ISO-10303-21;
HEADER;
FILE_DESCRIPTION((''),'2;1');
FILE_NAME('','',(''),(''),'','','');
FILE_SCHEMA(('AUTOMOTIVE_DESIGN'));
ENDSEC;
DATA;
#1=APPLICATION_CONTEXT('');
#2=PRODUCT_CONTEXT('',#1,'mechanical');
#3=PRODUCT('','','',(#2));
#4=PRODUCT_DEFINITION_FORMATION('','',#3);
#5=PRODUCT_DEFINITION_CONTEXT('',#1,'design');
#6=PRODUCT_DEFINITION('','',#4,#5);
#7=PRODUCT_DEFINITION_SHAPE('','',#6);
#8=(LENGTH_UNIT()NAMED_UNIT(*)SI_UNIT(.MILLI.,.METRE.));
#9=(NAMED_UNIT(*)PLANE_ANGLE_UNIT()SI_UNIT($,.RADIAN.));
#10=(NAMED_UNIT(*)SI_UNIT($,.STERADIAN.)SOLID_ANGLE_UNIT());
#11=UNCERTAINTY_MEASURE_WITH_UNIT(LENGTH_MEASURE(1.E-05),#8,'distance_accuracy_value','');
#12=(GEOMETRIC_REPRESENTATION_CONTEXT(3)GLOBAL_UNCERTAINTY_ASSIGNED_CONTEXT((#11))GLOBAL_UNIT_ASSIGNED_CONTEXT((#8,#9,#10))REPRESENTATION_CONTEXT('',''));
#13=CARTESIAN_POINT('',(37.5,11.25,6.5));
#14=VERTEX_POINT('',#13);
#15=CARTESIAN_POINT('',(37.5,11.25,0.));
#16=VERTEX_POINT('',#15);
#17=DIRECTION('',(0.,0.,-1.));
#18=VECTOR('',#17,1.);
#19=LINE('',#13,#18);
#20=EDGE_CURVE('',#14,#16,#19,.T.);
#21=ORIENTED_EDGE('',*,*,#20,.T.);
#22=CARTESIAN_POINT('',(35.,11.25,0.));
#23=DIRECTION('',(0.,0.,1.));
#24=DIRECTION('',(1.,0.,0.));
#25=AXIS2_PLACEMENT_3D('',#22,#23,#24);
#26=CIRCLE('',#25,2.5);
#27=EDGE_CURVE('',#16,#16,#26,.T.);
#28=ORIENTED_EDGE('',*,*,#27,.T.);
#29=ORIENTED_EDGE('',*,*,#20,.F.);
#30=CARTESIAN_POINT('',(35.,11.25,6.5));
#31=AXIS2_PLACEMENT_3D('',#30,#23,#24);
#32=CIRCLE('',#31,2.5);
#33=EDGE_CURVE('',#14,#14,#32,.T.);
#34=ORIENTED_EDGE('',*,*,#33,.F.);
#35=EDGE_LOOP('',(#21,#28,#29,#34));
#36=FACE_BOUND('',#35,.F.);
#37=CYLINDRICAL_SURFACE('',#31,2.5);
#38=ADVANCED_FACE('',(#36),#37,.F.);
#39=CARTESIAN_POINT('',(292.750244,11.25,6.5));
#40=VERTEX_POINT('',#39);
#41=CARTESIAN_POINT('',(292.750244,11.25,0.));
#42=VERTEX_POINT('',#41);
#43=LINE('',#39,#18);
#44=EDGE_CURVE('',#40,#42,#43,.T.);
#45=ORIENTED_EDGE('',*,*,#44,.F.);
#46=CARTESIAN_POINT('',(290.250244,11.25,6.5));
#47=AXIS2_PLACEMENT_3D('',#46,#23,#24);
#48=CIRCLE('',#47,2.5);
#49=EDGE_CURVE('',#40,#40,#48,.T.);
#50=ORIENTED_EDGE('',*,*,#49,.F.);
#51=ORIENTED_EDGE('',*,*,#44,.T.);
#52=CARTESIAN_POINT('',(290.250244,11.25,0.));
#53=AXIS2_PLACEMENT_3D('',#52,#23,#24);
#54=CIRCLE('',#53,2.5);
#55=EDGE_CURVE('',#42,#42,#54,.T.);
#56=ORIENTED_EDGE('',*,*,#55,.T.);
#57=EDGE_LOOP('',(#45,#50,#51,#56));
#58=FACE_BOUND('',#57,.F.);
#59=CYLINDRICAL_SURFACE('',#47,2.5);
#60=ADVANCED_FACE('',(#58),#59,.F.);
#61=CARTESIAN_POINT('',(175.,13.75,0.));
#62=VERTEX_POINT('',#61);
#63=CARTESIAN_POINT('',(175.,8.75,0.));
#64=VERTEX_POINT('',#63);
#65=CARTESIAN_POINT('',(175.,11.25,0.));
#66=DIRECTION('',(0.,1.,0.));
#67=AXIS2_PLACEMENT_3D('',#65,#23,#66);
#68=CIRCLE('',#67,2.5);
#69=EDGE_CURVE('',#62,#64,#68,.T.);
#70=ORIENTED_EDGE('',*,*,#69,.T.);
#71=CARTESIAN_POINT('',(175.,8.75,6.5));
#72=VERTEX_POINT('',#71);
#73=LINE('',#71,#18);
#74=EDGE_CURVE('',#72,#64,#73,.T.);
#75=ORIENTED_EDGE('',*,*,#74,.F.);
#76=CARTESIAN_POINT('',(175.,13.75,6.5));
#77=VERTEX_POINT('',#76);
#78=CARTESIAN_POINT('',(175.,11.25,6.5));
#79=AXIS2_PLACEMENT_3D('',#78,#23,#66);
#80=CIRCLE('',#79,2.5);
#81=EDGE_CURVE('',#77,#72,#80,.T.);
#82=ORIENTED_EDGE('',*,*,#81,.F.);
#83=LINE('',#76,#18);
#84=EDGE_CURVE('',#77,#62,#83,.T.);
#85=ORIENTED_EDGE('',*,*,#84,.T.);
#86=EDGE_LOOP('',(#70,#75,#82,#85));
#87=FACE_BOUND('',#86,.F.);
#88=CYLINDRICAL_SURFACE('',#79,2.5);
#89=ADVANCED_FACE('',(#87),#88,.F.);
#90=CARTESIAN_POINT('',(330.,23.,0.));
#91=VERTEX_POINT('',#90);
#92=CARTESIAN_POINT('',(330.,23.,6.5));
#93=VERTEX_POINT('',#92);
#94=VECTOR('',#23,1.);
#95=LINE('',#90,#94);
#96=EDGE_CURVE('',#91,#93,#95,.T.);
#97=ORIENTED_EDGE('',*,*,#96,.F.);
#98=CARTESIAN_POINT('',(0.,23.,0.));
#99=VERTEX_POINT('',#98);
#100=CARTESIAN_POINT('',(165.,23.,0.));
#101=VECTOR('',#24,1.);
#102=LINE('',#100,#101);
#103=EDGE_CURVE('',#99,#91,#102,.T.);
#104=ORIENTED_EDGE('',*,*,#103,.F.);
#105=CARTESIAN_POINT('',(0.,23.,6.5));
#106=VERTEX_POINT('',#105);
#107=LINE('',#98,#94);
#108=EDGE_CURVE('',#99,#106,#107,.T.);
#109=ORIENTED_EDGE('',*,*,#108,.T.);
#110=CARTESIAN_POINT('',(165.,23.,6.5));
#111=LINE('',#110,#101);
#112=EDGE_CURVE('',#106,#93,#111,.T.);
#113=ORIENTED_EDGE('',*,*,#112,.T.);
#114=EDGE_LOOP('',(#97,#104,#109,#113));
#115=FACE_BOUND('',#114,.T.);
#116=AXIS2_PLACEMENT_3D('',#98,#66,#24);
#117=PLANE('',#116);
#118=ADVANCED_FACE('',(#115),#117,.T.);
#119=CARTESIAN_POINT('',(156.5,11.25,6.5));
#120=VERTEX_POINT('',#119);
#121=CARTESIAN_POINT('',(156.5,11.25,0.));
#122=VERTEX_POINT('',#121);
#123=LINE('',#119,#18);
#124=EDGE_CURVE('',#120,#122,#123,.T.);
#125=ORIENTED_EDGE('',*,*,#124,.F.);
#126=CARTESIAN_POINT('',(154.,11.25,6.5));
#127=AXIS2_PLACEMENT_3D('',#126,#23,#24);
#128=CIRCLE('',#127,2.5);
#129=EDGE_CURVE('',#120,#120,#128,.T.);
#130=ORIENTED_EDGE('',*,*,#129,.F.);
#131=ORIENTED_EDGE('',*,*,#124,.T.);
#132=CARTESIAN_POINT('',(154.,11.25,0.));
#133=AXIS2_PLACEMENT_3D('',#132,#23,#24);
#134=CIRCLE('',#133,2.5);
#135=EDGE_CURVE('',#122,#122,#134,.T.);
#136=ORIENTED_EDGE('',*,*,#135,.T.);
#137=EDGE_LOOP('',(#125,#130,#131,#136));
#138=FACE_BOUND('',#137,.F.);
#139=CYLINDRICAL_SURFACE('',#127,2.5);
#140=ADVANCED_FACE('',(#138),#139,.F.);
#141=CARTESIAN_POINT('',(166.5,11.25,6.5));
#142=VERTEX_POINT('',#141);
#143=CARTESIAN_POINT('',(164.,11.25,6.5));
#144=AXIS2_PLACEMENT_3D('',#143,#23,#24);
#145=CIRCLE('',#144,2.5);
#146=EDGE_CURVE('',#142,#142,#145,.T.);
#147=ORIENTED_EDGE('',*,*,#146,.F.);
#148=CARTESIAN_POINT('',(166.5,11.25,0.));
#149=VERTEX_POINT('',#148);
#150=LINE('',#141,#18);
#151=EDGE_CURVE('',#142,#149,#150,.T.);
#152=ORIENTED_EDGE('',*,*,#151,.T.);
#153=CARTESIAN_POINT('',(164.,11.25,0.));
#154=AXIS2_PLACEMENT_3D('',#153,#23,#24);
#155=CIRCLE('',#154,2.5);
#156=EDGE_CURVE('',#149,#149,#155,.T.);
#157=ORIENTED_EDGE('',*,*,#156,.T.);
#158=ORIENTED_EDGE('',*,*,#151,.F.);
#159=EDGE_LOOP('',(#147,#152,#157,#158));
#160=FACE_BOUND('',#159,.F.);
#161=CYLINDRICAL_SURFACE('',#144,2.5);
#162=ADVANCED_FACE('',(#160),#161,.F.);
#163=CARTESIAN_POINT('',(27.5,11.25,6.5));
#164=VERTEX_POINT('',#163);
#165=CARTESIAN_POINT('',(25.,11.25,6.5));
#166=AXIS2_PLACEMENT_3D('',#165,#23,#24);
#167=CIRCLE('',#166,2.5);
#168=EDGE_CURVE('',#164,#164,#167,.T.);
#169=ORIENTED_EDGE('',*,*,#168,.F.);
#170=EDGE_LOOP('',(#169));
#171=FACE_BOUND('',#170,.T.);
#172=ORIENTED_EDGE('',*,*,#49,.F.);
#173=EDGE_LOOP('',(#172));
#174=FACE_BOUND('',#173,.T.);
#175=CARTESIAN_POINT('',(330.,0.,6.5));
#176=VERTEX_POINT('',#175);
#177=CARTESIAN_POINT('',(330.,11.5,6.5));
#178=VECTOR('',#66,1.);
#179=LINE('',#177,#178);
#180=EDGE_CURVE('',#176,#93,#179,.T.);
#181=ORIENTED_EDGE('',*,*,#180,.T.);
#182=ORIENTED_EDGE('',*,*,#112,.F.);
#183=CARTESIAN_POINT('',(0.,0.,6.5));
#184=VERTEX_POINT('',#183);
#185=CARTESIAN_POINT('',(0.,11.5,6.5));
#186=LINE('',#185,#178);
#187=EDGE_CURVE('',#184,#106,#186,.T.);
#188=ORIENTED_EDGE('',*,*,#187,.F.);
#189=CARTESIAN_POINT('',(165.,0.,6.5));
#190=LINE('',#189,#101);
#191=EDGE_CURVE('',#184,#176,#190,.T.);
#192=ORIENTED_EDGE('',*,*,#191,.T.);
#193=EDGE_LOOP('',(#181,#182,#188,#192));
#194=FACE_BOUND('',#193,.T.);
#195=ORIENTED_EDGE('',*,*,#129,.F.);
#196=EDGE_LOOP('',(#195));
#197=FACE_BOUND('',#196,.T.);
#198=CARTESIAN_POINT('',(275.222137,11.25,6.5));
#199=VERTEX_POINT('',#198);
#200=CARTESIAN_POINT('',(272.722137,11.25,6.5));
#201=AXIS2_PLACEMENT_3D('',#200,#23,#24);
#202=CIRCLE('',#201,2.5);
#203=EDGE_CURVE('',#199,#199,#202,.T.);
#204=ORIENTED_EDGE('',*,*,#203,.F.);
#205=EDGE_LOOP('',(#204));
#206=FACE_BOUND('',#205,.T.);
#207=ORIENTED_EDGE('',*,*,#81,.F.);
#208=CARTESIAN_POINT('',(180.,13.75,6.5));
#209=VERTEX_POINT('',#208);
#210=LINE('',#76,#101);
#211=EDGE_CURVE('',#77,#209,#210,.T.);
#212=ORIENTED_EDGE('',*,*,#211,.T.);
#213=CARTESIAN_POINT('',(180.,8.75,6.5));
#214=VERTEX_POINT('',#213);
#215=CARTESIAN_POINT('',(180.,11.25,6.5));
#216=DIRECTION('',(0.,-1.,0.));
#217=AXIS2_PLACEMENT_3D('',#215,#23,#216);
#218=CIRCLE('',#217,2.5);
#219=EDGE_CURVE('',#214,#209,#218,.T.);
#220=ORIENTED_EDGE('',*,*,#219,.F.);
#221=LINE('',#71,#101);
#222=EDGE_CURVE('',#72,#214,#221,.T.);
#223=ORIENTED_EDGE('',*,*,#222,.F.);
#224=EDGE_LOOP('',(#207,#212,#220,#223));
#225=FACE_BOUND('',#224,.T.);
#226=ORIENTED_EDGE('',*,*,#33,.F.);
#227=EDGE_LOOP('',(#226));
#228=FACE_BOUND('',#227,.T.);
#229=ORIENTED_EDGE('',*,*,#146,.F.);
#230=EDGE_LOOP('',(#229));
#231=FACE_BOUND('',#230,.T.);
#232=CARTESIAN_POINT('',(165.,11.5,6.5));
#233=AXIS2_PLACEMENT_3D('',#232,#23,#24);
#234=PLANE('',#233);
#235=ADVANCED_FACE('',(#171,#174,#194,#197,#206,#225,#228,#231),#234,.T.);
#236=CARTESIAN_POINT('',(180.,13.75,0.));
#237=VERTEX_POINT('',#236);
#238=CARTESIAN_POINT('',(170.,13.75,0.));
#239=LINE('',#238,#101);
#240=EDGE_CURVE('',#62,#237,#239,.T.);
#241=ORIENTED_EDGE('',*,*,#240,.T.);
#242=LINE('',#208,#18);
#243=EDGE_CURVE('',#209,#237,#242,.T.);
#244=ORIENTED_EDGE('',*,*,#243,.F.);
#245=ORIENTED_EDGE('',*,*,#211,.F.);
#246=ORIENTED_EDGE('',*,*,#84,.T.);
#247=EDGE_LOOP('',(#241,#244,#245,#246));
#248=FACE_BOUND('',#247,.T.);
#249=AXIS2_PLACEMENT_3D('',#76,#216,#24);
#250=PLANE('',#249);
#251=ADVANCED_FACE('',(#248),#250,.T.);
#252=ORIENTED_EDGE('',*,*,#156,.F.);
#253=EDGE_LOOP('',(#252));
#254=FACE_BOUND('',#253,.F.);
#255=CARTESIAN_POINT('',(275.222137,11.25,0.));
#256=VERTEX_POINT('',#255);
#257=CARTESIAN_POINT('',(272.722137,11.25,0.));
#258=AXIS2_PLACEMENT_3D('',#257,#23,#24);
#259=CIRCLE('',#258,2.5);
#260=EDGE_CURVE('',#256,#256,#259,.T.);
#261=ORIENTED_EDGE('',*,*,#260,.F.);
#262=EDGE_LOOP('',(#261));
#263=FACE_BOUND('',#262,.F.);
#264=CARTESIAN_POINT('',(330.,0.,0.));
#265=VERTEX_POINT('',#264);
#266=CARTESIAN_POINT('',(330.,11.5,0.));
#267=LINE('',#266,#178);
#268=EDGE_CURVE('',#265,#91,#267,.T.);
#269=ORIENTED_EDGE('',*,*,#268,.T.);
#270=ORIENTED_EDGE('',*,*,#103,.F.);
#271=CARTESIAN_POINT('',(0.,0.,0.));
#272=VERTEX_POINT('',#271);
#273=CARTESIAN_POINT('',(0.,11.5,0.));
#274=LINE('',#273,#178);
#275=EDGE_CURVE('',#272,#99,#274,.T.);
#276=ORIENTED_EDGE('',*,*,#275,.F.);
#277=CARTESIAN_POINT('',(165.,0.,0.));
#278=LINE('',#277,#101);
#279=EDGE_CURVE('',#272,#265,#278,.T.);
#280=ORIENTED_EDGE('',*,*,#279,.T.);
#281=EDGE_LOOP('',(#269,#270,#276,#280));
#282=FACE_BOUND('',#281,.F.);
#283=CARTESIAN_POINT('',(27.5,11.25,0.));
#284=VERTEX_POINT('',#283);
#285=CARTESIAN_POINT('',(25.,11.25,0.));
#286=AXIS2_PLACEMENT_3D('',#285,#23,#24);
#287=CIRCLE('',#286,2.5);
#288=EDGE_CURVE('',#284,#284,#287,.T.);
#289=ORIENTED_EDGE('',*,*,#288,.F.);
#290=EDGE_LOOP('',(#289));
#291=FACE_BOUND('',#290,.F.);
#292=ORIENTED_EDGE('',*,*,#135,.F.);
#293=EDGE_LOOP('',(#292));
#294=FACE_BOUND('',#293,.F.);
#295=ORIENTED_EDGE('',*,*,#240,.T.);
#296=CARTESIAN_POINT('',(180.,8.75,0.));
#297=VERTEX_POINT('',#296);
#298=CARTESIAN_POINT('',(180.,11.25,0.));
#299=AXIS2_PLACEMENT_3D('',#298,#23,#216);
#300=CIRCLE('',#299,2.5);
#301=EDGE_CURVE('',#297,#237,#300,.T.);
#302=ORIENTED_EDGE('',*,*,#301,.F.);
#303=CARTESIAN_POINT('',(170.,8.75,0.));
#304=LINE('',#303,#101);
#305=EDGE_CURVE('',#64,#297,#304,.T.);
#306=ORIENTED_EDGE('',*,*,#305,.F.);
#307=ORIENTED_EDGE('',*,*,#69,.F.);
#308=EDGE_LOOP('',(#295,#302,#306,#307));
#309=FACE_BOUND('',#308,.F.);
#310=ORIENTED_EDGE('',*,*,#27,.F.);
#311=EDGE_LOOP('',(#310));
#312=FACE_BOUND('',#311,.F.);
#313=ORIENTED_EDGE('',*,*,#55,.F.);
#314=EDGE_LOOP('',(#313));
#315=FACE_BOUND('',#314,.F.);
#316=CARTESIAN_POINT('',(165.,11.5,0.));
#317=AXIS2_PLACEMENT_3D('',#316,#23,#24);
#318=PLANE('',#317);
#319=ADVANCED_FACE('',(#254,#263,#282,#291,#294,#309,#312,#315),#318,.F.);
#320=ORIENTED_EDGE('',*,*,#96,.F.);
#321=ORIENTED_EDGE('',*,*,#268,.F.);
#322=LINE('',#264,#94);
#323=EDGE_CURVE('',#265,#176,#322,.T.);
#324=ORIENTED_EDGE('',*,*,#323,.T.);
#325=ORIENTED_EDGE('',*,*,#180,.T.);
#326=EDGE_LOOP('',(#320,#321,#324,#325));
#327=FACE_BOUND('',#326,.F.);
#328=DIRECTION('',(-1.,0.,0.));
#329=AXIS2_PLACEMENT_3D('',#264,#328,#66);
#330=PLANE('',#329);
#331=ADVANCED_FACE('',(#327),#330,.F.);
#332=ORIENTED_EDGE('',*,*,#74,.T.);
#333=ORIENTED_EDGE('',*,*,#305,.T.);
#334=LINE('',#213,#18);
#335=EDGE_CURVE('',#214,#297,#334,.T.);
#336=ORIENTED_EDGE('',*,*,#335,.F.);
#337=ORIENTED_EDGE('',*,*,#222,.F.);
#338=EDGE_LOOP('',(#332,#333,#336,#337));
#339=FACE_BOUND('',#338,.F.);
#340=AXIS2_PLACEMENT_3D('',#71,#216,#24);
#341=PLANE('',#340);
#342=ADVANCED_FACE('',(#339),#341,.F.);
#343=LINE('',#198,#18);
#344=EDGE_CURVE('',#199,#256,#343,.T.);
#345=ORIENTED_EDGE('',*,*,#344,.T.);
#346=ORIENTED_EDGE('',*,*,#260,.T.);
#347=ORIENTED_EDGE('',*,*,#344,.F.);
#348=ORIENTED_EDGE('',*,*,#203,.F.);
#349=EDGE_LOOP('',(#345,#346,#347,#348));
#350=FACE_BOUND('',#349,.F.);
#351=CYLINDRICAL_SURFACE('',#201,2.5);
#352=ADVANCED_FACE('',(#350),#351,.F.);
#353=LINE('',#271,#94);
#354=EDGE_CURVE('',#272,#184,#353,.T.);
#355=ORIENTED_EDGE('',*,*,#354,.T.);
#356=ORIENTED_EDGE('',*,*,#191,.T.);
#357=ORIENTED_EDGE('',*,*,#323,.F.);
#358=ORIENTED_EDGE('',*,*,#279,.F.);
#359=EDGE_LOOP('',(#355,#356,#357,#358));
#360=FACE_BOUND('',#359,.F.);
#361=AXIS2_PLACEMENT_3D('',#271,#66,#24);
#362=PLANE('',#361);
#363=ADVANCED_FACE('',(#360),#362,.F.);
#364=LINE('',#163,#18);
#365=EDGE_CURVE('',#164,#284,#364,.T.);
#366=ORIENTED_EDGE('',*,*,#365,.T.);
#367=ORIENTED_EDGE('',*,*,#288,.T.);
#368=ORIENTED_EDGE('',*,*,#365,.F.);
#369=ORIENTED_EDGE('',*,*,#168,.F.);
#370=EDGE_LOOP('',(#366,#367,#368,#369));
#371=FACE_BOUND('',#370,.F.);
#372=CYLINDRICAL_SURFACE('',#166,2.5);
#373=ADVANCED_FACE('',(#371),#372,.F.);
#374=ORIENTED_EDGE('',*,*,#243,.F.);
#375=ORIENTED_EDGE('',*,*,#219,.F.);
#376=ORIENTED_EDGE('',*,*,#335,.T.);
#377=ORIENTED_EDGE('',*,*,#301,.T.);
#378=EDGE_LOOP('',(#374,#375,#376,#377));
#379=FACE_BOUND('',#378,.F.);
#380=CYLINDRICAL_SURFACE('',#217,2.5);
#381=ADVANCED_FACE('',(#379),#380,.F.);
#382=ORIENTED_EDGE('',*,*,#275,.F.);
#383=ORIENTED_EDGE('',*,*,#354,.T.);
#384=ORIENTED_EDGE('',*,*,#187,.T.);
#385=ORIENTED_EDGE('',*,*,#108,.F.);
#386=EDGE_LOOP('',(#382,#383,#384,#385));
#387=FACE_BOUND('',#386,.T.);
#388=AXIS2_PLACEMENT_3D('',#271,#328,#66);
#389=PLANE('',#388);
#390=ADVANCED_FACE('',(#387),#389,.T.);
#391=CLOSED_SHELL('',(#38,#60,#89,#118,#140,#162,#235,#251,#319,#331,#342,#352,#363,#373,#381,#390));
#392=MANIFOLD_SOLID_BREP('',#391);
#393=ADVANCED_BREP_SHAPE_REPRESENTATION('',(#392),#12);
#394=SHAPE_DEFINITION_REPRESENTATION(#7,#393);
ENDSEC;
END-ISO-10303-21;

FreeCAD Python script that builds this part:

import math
import FreeCAD as App
import Part
import Sketcher


def add_polygon(sketch, points):
    """Adds a closed chain of lines whose ends are joined by coincident constraints."""
    first, n = sketch.GeometryCount, len(points)
    for a, b in zip(points, points[1:] + points[:1]):
        sketch.addGeometry(Part.LineSegment(App.Vector(*a, 0), App.Vector(*b, 0)), False)
    for i in range(n):
        sketch.addConstraint(Sketcher.Constraint("Coincident", first + i, 2, first + (i + 1) % n, 1))

doc = App.newDocument("Part")
body = doc.addObject("PartDesign::Body", "Body")

# Sketch on XY plane
sketch1 = body.newObject("Sketcher::SketchObject", "Sketch")
sketch1.AttachmentSupport = (doc.getObject("XY_Plane"), [""])
sketch1.MapMode = "FlatFace"
add_polygon(sketch1, [(0, 23), (0, 0), (330, 0), (330, 23)])  # lines 0-3
sketch1.addConstraint([
    Sketcher.Constraint("Vertical", 0),
    Sketcher.Constraint("Horizontal", 1),
    Sketcher.Constraint("Vertical", 2),
    Sketcher.Constraint("Horizontal", 3),
    Sketcher.Constraint("Coincident", 0, 2, -1, 1),
    Sketcher.Constraint("DistanceX", 1, 1, 1, 2, 330.0),
    Sketcher.Constraint("DistanceY", 0, 2, 0, 1, 23.0),
])
pad1 = body.newObject("PartDesign::Pad", "Pad")
pad1.Profile = sketch1
pad1.Length = 6.5

# Sketch on XY plane
sketch2 = body.newObject("Sketcher::SketchObject", "Sketch001")
sketch2.AttachmentSupport = (doc.getObject("XY_Plane"), [""])
sketch2.MapMode = "FlatFace"
sketch2.AttachmentOffset = App.Placement(App.Vector(0, 0, 6.5), App.Rotation())
sketch2.addGeometry([
    Part.Circle(App.Vector(25, 11.25, 0), App.Vector(0, 0, 1), 2.5),  # 0
    Part.Circle(App.Vector(35, 11.25, 0), App.Vector(0, 0, 1), 2.5),  # 1
    Part.Circle(App.Vector(154, 11.25, 0), App.Vector(0, 0, 1), 2.5),  # 2
    Part.Circle(App.Vector(164, 11.25, 0), App.Vector(0, 0, 1), 2.5),  # 3
    Part.Circle(App.Vector(272.722137, 11.25, 0), App.Vector(0, 0, 1), 2.5),  # 4
    Part.Circle(App.Vector(290.250244, 11.25, 0), App.Vector(0, 0, 1), 2.5),  # 5
    Part.ArcOfCircle(Part.Circle(App.Vector(175, 11.25, 0), App.Vector(0, 0, 1), 2.5), math.radians(90), math.radians(270)),  # 6
    Part.LineSegment(App.Vector(175, 8.75, 0), App.Vector(180, 8.75, 0)),  # 7
    Part.ArcOfCircle(Part.Circle(App.Vector(180, 11.25, 0), App.Vector(0, 0, 1), 2.5), math.radians(-90), math.radians(90)),  # 8
    Part.LineSegment(App.Vector(180, 13.75, 0), App.Vector(175, 13.75, 0)),  # 9
], False)
sketch2.addConstraint([
    Sketcher.Constraint("Tangent", 6, 2, 7, 1),
    Sketcher.Constraint("Tangent", 7, 2, 8, 1),
    Sketcher.Constraint("Tangent", 8, 2, 9, 1),
    Sketcher.Constraint("Tangent", 9, 2, 6, 1),
    Sketcher.Constraint("Horizontal", 7),
    Sketcher.Constraint("Horizontal", 9),
    Sketcher.Constraint("Equal", 0, 1),
    Sketcher.Constraint("Equal", 1, 2),
    Sketcher.Constraint("Equal", 2, 3),
    Sketcher.Constraint("Equal", 3, 4),
    Sketcher.Constraint("Equal", 4, 5),
    Sketcher.Constraint("Equal", 5, 6),
    Sketcher.Constraint("Horizontal", 0, 3, 1, 3),
    Sketcher.Constraint("Horizontal", 1, 3, 2, 3),
    Sketcher.Constraint("Horizontal", 2, 3, 3, 3),
    Sketcher.Constraint("Horizontal", 3, 3, 4, 3),
    Sketcher.Constraint("Horizontal", 4, 3, 5, 3),
    Sketcher.Constraint("Horizontal", 5, 3, 6, 3),
    Sketcher.Constraint("Diameter", 0, 5.0),
    Sketcher.Constraint("DistanceX", 7, 1, 7, 2, 5.0),
    Sketcher.Constraint("DistanceX", -1, 1, 0, 3, 25.0),
    Sketcher.Constraint("DistanceX", -1, 1, 1, 3, 35.0),
    Sketcher.Constraint("DistanceX", -1, 1, 2, 3, 154.0),
    Sketcher.Constraint("DistanceX", -1, 1, 3, 3, 164.0),
    Sketcher.Constraint("DistanceX", -1, 1, 6, 3, 175.0),
    Sketcher.Constraint("DistanceY", -1, 1, 0, 3, 11.25),
    Sketcher.Constraint("DistanceX", -1, 1, 4, 3, 272.722137),
    Sketcher.Constraint("DistanceX", -1, 1, 5, 3, 290.250244),
])
pocket1 = body.newObject("PartDesign::Pocket", "Pocket")
pocket1.Profile = sketch2
pocket1.Type = "ThroughAll"

doc.recompute()
